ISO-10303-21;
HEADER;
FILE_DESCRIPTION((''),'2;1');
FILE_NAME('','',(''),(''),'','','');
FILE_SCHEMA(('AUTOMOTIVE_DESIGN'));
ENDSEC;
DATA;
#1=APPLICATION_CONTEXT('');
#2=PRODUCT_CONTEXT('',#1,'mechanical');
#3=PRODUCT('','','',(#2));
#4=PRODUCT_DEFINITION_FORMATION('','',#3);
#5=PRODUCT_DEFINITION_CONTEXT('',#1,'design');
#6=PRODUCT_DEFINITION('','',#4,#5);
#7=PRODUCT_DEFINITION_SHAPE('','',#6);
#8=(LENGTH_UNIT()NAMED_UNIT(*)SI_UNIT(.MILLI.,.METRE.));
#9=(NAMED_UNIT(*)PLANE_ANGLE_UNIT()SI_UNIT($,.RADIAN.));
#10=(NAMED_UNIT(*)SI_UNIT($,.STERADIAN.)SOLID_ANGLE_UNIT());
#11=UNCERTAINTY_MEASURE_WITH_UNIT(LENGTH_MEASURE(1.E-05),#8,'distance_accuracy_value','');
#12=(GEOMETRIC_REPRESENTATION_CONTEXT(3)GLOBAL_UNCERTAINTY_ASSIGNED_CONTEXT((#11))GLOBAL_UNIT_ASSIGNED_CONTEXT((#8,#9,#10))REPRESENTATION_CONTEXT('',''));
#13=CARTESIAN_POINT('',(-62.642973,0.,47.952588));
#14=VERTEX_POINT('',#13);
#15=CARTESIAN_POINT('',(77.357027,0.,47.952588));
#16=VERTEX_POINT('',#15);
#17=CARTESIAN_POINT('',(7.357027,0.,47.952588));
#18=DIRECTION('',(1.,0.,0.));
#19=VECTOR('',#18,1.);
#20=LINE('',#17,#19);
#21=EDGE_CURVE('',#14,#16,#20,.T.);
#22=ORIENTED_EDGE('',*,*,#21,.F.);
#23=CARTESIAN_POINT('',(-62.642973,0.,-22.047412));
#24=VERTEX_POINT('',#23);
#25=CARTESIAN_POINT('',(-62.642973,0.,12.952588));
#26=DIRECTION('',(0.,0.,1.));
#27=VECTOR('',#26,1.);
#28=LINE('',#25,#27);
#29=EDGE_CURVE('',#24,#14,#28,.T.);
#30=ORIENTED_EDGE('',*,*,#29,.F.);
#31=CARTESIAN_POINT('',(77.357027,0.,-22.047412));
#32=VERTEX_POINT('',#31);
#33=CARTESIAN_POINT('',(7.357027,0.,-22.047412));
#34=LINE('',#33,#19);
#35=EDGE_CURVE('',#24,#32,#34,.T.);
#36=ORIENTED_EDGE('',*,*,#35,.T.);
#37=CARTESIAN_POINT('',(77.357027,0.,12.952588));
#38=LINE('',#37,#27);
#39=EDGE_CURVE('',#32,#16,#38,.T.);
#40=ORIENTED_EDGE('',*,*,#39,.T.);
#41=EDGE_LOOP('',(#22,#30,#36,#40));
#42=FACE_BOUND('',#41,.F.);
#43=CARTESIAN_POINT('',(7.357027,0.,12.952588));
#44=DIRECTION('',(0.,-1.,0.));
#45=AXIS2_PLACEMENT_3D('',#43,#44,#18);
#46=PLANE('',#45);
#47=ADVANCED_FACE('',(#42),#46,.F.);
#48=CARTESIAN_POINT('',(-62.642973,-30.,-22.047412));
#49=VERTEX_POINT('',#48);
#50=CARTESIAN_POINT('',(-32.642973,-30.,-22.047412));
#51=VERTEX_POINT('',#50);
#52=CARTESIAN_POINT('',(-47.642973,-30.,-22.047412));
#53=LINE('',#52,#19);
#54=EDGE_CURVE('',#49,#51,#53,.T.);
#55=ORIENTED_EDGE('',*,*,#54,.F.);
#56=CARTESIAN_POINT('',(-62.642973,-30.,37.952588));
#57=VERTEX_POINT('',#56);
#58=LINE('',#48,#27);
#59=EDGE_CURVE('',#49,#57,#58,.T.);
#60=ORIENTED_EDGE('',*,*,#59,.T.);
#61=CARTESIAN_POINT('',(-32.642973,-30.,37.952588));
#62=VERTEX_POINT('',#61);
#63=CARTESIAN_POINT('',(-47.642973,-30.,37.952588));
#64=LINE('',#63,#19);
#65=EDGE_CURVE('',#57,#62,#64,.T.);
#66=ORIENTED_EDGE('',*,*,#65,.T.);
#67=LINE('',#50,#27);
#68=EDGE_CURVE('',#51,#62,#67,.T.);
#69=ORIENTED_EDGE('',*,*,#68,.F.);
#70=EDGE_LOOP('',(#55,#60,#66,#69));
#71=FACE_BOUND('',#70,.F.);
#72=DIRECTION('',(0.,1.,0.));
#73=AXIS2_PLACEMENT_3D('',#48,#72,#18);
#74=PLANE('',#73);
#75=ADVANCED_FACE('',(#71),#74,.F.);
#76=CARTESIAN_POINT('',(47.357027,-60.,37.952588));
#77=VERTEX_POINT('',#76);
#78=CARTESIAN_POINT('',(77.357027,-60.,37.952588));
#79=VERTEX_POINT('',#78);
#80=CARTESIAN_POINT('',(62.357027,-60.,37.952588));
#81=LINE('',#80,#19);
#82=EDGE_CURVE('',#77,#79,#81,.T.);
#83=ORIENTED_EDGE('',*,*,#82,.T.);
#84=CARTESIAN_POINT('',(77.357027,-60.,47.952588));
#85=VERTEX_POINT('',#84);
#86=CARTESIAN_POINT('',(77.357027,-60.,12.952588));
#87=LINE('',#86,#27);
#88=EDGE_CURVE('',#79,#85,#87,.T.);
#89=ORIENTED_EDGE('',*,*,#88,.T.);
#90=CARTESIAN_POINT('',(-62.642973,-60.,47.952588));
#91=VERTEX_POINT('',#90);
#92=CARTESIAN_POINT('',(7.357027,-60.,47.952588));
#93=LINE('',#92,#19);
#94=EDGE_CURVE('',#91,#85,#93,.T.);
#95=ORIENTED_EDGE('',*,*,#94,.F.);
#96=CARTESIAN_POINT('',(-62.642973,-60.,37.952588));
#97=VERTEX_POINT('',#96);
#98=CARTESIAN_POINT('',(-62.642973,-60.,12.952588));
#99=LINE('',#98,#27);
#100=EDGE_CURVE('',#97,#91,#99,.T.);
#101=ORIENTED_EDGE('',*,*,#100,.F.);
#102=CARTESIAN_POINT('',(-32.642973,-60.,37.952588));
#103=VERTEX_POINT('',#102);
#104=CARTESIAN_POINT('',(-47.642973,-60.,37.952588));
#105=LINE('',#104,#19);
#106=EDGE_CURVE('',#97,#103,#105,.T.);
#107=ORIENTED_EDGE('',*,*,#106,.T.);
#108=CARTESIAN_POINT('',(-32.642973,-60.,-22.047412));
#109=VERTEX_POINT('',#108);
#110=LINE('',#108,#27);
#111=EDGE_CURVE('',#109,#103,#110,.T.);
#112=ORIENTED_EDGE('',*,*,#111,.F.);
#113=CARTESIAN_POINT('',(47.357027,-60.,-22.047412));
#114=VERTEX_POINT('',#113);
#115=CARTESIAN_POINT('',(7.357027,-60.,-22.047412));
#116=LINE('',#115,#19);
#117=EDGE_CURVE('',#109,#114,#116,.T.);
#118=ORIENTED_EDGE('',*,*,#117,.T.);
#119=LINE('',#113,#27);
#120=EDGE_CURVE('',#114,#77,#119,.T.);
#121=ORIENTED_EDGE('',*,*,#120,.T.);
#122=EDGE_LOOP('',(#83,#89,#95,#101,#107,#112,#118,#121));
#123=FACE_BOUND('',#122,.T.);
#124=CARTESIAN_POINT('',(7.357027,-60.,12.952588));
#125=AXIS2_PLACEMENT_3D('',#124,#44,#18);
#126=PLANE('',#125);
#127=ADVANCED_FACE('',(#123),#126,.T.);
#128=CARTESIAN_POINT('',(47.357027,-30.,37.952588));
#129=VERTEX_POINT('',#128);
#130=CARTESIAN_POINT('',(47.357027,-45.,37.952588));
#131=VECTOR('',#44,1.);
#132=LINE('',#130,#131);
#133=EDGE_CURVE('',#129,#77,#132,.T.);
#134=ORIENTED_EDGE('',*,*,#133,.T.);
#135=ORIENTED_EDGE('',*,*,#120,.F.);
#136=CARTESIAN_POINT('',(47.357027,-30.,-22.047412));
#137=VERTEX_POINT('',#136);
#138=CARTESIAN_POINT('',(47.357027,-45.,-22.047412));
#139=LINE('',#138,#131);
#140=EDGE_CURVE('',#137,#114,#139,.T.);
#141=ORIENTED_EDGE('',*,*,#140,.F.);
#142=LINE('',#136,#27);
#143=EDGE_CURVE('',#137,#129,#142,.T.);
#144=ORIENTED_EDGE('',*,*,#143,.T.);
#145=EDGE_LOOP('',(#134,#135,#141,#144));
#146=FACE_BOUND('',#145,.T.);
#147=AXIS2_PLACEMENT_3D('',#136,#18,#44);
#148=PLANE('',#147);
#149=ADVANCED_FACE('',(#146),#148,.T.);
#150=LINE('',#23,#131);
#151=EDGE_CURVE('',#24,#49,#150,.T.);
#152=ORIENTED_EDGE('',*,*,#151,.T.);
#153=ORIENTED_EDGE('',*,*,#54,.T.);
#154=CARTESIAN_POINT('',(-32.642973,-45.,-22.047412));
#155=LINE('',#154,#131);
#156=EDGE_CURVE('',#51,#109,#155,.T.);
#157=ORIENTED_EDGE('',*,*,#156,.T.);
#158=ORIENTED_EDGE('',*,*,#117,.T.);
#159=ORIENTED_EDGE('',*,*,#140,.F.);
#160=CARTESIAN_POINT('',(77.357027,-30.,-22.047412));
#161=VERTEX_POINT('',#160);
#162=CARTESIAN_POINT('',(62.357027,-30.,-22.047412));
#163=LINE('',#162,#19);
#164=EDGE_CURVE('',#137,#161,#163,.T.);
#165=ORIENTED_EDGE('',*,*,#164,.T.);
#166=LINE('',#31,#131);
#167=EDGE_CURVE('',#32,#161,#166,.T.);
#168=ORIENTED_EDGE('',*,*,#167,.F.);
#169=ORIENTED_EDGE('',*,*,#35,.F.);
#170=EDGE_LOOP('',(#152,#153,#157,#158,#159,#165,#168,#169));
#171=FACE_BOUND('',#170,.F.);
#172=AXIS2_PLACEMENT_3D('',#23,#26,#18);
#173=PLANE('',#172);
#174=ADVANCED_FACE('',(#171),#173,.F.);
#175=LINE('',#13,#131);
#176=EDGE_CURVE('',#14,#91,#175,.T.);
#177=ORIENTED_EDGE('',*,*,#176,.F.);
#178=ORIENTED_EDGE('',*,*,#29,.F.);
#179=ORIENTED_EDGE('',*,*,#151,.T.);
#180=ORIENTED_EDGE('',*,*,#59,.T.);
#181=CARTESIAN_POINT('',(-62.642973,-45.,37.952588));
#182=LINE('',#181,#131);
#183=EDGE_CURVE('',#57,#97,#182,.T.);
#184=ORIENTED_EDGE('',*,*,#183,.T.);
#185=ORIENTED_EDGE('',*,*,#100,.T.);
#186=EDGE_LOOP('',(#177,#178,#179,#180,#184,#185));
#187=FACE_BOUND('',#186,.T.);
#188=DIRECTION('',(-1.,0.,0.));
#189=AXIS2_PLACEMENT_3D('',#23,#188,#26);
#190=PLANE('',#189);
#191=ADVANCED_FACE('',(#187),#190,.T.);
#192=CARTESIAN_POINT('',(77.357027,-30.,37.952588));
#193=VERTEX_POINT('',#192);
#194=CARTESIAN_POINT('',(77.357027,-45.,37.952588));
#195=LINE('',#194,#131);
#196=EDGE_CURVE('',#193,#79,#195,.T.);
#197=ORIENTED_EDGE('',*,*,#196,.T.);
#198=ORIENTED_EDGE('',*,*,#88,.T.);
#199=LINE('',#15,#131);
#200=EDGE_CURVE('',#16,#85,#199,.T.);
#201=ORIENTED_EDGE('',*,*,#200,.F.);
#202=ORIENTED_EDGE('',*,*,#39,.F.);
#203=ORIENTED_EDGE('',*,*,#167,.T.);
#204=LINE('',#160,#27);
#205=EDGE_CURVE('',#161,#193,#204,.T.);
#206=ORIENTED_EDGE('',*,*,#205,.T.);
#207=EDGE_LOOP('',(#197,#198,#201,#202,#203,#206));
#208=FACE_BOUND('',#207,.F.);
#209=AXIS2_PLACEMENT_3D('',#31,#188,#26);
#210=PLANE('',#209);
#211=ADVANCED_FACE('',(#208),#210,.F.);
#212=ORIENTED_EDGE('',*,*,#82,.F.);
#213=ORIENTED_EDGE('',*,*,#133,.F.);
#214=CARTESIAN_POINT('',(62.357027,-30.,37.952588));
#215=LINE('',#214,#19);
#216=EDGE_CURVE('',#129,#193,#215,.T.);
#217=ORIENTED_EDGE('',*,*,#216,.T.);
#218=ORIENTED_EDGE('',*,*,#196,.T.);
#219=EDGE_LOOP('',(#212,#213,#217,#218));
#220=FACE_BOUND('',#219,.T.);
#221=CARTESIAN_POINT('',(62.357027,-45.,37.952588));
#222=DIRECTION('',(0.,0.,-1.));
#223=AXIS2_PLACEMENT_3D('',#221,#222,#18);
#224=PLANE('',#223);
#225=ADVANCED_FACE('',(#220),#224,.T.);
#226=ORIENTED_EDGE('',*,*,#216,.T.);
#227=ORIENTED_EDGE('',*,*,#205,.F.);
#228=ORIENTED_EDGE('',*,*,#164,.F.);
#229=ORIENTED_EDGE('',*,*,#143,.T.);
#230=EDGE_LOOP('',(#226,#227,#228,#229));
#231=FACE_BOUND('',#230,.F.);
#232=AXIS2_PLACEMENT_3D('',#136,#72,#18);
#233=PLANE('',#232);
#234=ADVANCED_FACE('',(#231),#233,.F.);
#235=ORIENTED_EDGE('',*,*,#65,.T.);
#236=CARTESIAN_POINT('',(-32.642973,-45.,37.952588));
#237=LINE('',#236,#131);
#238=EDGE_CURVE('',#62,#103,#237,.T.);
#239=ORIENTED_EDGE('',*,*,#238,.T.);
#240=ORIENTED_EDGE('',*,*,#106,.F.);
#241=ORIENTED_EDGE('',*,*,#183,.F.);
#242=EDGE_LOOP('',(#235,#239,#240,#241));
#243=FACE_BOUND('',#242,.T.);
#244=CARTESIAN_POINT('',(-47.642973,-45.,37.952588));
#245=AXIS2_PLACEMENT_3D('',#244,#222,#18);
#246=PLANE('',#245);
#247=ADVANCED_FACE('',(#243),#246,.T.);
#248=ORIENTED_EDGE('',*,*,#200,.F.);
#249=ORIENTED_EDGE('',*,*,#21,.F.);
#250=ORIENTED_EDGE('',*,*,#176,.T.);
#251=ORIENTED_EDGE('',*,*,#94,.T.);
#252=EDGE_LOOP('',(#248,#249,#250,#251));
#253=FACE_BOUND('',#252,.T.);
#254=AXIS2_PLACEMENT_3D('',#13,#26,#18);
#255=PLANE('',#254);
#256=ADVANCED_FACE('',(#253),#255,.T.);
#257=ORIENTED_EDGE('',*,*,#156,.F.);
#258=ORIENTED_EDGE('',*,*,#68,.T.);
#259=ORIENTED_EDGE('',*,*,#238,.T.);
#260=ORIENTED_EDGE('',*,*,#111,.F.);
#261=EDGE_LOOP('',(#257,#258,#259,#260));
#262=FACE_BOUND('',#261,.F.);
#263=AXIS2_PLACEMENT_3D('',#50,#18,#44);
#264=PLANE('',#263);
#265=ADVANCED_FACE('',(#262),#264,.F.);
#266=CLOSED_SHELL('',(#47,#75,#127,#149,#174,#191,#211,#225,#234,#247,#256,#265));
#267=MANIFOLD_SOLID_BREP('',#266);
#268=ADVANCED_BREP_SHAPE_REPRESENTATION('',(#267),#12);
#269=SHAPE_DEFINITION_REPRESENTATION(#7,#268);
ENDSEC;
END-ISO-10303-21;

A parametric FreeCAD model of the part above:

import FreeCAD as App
import Part
import Sketcher

V = App.Vector

doc = App.newDocument("Part")
body = doc.addObject("PartDesign::Body", "Body")

sketch1 = body.newObject("Sketcher::SketchObject", "Sketch")
sketch1.AttachmentSupport = (doc.getObject("XZ_Plane"), [""])
sketch1.MapMode = "FlatFace"
sketch1.addGeometry(Part.LineSegment(V(-63, 48, 0), V(-63, -22, 0)), False)
sketch1.addGeometry(Part.LineSegment(V(-63, -22, 0), V(77, -22, 0)), False)
sketch1.addGeometry(Part.LineSegment(V(77, -22, 0), V(77, 48, 0)), False)
sketch1.addGeometry(Part.LineSegment(V(77, 48, 0), V(-63, 48, 0)), False)
sketch1.addConstraint(Sketcher.Constraint("Coincident", 0, 2, 1, 1))
sketch1.addConstraint(Sketcher.Constraint("Coincident", 1, 2, 2, 1))
sketch1.addConstraint(Sketcher.Constraint("Coincident", 2, 2, 3, 1))
sketch1.addConstraint(Sketcher.Constraint("Coincident", 3, 2, 0, 1))
sketch1.addConstraint(Sketcher.Constraint("Vertical", 0))
sketch1.addConstraint(Sketcher.Constraint("Horizontal", 1))
sketch1.addConstraint(Sketcher.Constraint("Vertical", 2))
sketch1.addConstraint(Sketcher.Constraint("Horizontal", 3))
sketch1.addConstraint(Sketcher.Constraint("DistanceX", 1, 1, 1, 2, 140.0))
sketch1.addConstraint(Sketcher.Constraint("DistanceY", 0, 2, 0, 1, 70.0))
sketch1.addConstraint(Sketcher.Constraint("DistanceX", 0, 2, -1, 1, 62.642973))
sketch1.addConstraint(Sketcher.Constraint("DistanceY", 0, 2, -1, 1, 22.047412))
pad1 = body.newObject("PartDesign::Pad", "Pad")
pad1.Profile = sketch1
pad1.Length = 60

sketch2 = body.newObject("Sketcher::SketchObject", "Sketch001")
sketch2.AttachmentSupport = (doc.getObject("XY_Plane"), [""])
sketch2.MapMode = "FlatFace"
sketch2.AttachmentOffset = App.Placement(V(0, 0, -22.047412), App.Rotation())
sketch2.addGeometry(Part.LineSegment(V(-63, -60, 0), V(-63, -30, 0)), False)
sketch2.addGeometry(Part.LineSegment(V(-63, -30, 0), V(-33, -30, 0)), False)
sketch2.addGeometry(Part.LineSegment(V(-33, -30, 0), V(-33, -60, 0)), False)
sketch2.addGeometry(Part.LineSegment(V(-33, -60, 0), V(-63, -60, 0)), False)
sketch2.addConstraint(Sketcher.Constraint("Coincident", 0, 2, 1, 1))
sketch2.addConstraint(Sketcher.Constraint("Coincident", 1, 2, 2, 1))
sketch2.addConstraint(Sketcher.Constraint("Coincident", 2, 2, 3, 1))
sketch2.addConstraint(Sketcher.Constraint("Coincident", 3, 2, 0, 1))
sketch2.addConstraint(Sketcher.Constraint("Vertical", 0))
sketch2.addConstraint(Sketcher.Constraint("Horizontal", 1))
sketch2.addConstraint(Sketcher.Constraint("Vertical", 2))
sketch2.addConstraint(Sketcher.Constraint("Horizontal", 3))
sketch2.addConstraint(Sketcher.Constraint("Equal", 3, 0))
sketch2.addConstraint(Sketcher.Constraint("DistanceX", 1, 1, 1, 2, 30.0))
sketch2.addConstraint(Sketcher.Constraint("DistanceY", 0, 2, -1, 1, 30.0))
sketch2.addConstraint(Sketcher.Constraint("DistanceX", 0, 2, -1, 1, 62.642973))
pocket1 = body.newObject("PartDesign::Pocket", "Pocket")
pocket1.Profile = sketch2
pocket1.Length = 60
pocket1.Reversed = True

sketch3 = body.newObject("Sketcher::SketchObject", "Sketch002")
sketch3.AttachmentSupport = (doc.getObject("XY_Plane"), [""])
sketch3.MapMode = "FlatFace"
sketch3.AttachmentOffset = App.Placement(V(0, 0, -22.047412), App.Rotation())
sketch3.addGeometry(Part.LineSegment(V(47, -60, 0), V(47, -30, 0)), False)
sketch3.addGeometry(Part.LineSegment(V(47, -30, 0), V(77, -30, 0)), False)
sketch3.addGeometry(Part.LineSegment(V(77, -30, 0), V(77, -60, 0)), False)
sketch3.addGeometry(Part.LineSegment(V(77, -60, 0), V(47, -60, 0)), False)
sketch3.addConstraint(Sketcher.Constraint("Coincident", 0, 2, 1, 1))
sketch3.addConstraint(Sketcher.Constraint("Coincident", 1, 2, 2, 1))
sketch3.addConstraint(Sketcher.Constraint("Coincident", 2, 2, 3, 1))
sketch3.addConstraint(Sketcher.Constraint("Coincident", 3, 2, 0, 1))
sketch3.addConstraint(Sketcher.Constraint("Vertical", 0))
sketch3.addConstraint(Sketcher.Constraint("Horizontal", 1))
sketch3.addConstraint(Sketcher.Constraint("Vertical", 2))
sketch3.addConstraint(Sketcher.Constraint("Horizontal", 3))
sketch3.addConstraint(Sketcher.Constraint("Equal", 3, 0))
sketch3.addConstraint(Sketcher.Constraint("DistanceX", 1, 1, 1, 2, 30.0))
sketch3.addConstraint(Sketcher.Constraint("DistanceY", 0, 2, -1, 1, 30.0))
sketch3.addConstraint(Sketcher.Constraint("DistanceX", -1, 1, 0, 2, 47.357027))
pocket2 = body.newObject("PartDesign::Pocket", "Pocket001")
pocket2.Profile = sketch3
pocket2.Length = 60
pocket2.Reversed = True

doc.recompute()
